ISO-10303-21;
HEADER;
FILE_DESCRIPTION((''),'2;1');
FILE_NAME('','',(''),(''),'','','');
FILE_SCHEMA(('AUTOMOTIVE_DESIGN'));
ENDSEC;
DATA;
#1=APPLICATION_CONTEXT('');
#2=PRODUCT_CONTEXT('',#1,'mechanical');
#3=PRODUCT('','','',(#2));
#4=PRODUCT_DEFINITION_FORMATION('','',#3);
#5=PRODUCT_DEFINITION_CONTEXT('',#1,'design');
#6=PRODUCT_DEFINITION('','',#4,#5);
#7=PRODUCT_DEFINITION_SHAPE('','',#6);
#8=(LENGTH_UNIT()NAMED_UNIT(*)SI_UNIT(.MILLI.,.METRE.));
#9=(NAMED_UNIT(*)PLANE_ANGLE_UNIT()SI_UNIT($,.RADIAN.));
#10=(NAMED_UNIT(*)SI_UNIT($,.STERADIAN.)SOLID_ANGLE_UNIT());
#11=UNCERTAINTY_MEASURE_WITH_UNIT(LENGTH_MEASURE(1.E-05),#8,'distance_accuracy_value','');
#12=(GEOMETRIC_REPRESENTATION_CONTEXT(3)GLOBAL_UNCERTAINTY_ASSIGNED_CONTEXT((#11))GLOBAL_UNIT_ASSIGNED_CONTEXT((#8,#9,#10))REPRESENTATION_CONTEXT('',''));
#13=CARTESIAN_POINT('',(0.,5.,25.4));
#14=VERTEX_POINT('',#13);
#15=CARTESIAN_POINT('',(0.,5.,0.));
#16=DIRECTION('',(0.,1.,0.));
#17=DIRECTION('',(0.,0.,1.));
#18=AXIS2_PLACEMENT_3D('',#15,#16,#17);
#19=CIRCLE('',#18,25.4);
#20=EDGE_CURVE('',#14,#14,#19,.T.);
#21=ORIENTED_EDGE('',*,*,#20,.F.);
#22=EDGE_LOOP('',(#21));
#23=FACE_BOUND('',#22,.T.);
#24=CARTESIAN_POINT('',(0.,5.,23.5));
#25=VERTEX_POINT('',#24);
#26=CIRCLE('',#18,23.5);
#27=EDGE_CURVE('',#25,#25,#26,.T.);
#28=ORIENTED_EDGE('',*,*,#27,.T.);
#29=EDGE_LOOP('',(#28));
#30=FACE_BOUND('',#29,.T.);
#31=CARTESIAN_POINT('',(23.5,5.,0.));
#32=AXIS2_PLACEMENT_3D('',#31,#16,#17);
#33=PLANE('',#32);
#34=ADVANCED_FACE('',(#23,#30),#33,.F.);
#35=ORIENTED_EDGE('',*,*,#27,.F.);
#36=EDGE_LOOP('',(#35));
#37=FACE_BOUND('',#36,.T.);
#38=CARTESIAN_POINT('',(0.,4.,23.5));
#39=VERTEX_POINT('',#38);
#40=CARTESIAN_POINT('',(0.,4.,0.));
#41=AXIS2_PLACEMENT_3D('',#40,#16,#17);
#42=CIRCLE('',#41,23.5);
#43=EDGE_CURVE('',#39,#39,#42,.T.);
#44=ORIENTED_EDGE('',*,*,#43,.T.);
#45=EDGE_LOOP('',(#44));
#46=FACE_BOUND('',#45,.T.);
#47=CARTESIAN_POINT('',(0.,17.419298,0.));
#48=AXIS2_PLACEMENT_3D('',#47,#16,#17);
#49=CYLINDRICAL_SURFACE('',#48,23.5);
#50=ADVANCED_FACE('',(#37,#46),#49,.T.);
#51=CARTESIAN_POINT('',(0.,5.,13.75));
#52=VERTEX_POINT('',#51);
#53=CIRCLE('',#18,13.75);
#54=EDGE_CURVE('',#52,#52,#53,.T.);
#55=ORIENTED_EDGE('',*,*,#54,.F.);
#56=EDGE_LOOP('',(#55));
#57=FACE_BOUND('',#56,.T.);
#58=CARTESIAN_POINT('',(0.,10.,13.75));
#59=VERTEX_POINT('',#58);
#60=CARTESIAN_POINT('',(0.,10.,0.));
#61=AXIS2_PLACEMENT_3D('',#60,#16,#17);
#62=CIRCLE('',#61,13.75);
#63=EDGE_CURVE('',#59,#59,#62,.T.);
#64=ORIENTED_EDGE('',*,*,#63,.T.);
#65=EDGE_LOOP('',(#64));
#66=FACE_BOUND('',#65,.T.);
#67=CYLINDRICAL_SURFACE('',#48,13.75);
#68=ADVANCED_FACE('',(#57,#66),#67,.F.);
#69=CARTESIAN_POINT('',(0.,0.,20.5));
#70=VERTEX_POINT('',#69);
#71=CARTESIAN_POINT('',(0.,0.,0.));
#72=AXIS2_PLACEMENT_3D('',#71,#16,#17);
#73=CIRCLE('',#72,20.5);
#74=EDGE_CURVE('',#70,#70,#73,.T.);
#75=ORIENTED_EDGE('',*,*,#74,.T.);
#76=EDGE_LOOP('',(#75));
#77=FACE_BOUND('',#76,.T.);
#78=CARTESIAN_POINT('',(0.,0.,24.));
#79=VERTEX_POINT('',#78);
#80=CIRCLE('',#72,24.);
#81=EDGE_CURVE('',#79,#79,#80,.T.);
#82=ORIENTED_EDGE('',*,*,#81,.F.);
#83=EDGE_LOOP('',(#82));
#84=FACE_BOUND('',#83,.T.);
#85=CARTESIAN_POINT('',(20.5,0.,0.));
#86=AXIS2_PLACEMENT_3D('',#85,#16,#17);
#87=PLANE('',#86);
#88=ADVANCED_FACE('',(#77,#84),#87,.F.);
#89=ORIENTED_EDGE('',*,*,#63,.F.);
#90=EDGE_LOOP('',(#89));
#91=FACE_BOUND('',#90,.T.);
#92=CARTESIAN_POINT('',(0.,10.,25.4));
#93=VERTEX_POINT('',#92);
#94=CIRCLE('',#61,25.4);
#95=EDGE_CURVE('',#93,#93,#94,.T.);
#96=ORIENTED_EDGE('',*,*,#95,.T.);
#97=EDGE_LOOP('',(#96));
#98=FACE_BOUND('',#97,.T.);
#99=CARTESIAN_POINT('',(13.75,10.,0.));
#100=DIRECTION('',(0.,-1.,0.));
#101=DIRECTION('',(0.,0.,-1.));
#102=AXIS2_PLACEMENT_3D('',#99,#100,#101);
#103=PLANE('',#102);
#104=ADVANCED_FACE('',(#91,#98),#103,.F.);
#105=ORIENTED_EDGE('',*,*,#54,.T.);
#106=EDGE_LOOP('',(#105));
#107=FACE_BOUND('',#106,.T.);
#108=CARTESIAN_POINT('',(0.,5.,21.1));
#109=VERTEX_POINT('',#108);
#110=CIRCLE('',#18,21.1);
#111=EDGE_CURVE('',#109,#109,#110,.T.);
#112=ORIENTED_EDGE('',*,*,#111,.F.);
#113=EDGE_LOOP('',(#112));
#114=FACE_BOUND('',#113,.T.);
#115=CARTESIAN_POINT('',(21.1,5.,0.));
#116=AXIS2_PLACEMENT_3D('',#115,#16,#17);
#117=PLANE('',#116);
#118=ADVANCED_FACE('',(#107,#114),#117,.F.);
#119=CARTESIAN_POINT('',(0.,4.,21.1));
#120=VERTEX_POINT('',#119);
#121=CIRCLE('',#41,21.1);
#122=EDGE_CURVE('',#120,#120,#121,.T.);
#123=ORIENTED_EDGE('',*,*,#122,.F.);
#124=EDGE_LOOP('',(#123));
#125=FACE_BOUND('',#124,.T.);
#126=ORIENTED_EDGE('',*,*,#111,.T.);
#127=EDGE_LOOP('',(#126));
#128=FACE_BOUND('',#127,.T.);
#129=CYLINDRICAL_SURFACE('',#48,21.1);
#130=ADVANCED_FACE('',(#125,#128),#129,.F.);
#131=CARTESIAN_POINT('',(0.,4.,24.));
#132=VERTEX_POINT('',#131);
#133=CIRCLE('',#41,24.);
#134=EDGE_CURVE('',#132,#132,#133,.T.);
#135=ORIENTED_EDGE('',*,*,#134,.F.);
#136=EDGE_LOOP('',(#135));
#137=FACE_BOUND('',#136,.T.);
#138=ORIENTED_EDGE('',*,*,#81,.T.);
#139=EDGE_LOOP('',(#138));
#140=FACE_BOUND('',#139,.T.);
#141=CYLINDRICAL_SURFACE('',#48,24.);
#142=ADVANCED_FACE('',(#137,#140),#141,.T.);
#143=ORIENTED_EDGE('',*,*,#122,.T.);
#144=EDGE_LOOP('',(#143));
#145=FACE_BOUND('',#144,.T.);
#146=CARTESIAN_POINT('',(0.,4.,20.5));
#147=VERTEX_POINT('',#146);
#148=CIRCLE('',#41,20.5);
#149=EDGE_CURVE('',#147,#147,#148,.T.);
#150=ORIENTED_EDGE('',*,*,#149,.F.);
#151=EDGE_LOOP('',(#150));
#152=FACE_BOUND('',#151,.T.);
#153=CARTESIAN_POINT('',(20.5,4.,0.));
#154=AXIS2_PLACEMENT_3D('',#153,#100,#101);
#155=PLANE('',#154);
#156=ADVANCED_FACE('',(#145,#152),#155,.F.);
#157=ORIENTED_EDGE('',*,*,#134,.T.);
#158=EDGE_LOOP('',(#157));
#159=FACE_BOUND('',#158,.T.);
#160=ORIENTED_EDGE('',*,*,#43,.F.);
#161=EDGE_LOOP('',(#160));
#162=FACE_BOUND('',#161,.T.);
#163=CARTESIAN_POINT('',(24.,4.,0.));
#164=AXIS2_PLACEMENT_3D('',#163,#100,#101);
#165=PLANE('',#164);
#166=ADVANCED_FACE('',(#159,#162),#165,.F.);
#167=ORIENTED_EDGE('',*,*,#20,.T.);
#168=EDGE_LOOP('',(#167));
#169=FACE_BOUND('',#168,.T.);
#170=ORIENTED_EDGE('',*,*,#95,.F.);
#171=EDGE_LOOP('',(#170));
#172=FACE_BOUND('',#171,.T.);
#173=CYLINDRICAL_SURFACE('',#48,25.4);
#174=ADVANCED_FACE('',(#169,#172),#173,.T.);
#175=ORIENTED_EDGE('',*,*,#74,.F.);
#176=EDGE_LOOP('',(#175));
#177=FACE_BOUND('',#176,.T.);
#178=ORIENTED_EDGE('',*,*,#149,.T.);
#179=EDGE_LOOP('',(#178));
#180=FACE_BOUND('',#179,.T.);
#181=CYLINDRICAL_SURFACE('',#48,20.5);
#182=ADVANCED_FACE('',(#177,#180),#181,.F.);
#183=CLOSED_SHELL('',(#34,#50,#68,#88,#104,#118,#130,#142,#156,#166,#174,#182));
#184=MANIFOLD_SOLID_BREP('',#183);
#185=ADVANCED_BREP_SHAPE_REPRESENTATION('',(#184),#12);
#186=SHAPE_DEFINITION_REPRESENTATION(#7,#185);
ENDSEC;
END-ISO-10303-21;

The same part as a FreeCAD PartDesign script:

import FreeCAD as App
import Part
import Sketcher

V = App.Vector
Q = App.Units.Quantity

doc = App.newDocument("Part")
body = doc.addObject("PartDesign::Body", "Body")

# Sketch on XY plane
sketch1 = doc.addObject("Sketcher::SketchObject", "Sketch")
body.addObject(sketch1)
sketch1.AttachmentSupport = (doc.XY_Plane, [""])
sketch1.MapMode = "FlatFace"
sketch1.addGeometry([
    Part.LineSegment(V(20.5, 4, 0), V(20.5, 0, 0)),  # 0
    Part.LineSegment(V(20.5, 0, 0), V(24, 0, 0)),  # 1
    Part.LineSegment(V(24, 0, 0), V(24, 4, 0)),  # 2
    Part.LineSegment(V(24, 4, 0), V(23.5, 4, 0)),  # 3
    Part.LineSegment(V(23.5, 4, 0), V(23.5, 5, 0)),  # 4
    Part.LineSegment(V(23.5, 5, 0), V(25.4, 5, 0)),  # 5
    Part.LineSegment(V(25.4, 5, 0), V(25.4, 10, 0)),  # 6
    Part.LineSegment(V(25.4, 10, 0), V(13.75, 10, 0)),  # 7
    Part.LineSegment(V(13.75, 10, 0), V(13.75, 5, 0)),  # 8
    Part.LineSegment(V(13.75, 5, 0), V(21.1, 5, 0)),  # 9
    Part.LineSegment(V(21.1, 5, 0), V(21.1, 4, 0)),  # 10
    Part.LineSegment(V(21.1, 4, 0), V(20.5, 4, 0)),  # 11
], False)
sketch1.addConstraint([
    Sketcher.Constraint("Coincident", 0, 2, 1, 1),
    Sketcher.Constraint("Coincident", 1, 2, 2, 1),
    Sketcher.Constraint("Coincident", 2, 2, 3, 1),
    Sketcher.Constraint("Coincident", 3, 2, 4, 1),
    Sketcher.Constraint("Coincident", 4, 2, 5, 1),
    Sketcher.Constraint("Coincident", 5, 2, 6, 1),
    Sketcher.Constraint("Coincident", 6, 2, 7, 1),
    Sketcher.Constraint("Coincident", 7, 2, 8, 1),
    Sketcher.Constraint("Coincident", 8, 2, 9, 1),
    Sketcher.Constraint("Coincident", 9, 2, 10, 1),
    Sketcher.Constraint("Coincident", 10, 2, 11, 1),
    Sketcher.Constraint("Coincident", 11, 2, 0, 1),
    Sketcher.Constraint("Vertical", 0),
    Sketcher.Constraint("Horizontal", 1),
    Sketcher.Constraint("Vertical", 2),
    Sketcher.Constraint("Horizontal", 3),
    Sketcher.Constraint("Vertical", 4),
    Sketcher.Constraint("Horizontal", 5),
    Sketcher.Constraint("Vertical", 6),
    Sketcher.Constraint("Horizontal", 7),
    Sketcher.Constraint("Vertical", 8),
    Sketcher.Constraint("Horizontal", 9),
    Sketcher.Constraint("Vertical", 10),
    Sketcher.Constraint("Horizontal", 11),
    Sketcher.Constraint("PointOnObject", 0, 2, -1),
    Sketcher.Constraint("Horizontal", 5, 2, 8, 2),
    Sketcher.Constraint("Horizontal", 3, 2, 10, 2),
    Sketcher.Constraint("DistanceY", 0, 2, 0, 1, Q("4 mm")),
    Sketcher.Constraint("DistanceY", 4, 1, 4, 2, Q("1 mm")),
    Sketcher.Constraint("DistanceY", 6, 1, 6, 2, Q("5 mm")),
    Sketcher.Constraint("DistanceX", 1, 1, 1, 2, Q("3.5 mm")),
    Sketcher.Constraint("DistanceX", 3, 2, 3, 1, Q("0.5 mm")),
    Sketcher.Constraint("DistanceX", 5, 1, 5, 2, Q("1.9 mm")),
    Sketcher.Constraint("DistanceX", 11, 2, 11, 1, Q("0.6 mm")),
    Sketcher.Constraint("DistanceX", -1, 1, 1, 2, Q("24 mm")),
    Sketcher.Constraint("DistanceX", 7, 2, 7, 1, Q("11.65 mm")),
])
revolution = doc.addObject("PartDesign::Revolution", "Revolution")
body.addObject(revolution)
revolution.Profile = sketch1
revolution.ReferenceAxis = (sketch1, ["V_Axis"])
revolution.Angle = 360

doc.recompute()
